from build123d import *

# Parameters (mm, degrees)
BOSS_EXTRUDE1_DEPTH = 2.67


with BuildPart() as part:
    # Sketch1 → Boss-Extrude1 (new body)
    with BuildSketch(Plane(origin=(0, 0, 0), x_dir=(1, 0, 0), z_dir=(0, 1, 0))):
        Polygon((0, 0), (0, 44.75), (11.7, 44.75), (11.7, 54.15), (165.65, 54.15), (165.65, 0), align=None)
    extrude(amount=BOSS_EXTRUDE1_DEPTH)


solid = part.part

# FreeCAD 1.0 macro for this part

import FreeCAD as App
import Part
import Sketcher

V = App.Vector
Q = App.Units.Quantity

doc = App.newDocument("Part")
body = doc.addObject("PartDesign::Body", "Body")

sketch1 = body.newObject("Sketcher::SketchObject", "Sketch")
sketch1.AttachmentSupport = (doc.getObject("XZ_Plane"), [""])
sketch1.MapMode = "FlatFace"
sketch1.addGeometry([
    Part.LineSegment(V(0, -45, 0), V(0, 0, 0)),
    Part.LineSegment(V(0, 0, 0), V(166, 0, 0)),
    Part.LineSegment(V(166, 0, 0), V(166, -54, 0)),
    Part.LineSegment(V(166, -54, 0), V(12, -54, 0)),
    Part.LineSegment(V(12, -54, 0), V(12, -45, 0)),
    Part.LineSegment(V(12, -45, 0), V(0, -45, 0)),
], False)
sketch1.addConstraint([
    Sketcher.Constraint("Coincident", 0, 2, 1, 1),
    Sketcher.Constraint("Coincident", 1, 2, 2, 1),
    Sketcher.Constraint("Coincident", 2, 2, 3, 1),
    Sketcher.Constraint("Coincident", 3, 2, 4, 1),
    Sketcher.Constraint("Coincident", 4, 2, 5, 1),
    Sketcher.Constraint("Coincident", 5, 2, 0, 1),
    Sketcher.Constraint("Vertical", 0),
    Sketcher.Constraint("Horizontal", 1),
    Sketcher.Constraint("Vertical", 2),
    Sketcher.Constraint("Horizontal", 3),
    Sketcher.Constraint("Vertical", 4),
    Sketcher.Constraint("Horizontal", 5),
    Sketcher.Constraint("Coincident", 0, 2, -1, 1),
    Sketcher.Constraint("DistanceX", 5, 2, 5, 1, Q("11.7 mm")),
    Sketcher.Constraint("DistanceY", 4, 1, 4, 2, Q("9.4 mm")),
    Sketcher.Constraint("DistanceX", 1, 1, 1, 2, Q("165.65 mm")),
    Sketcher.Constraint("DistanceY", 0, 1, 0, 2, Q("44.75 mm")),
])
pad1 = body.newObject("PartDesign::Pad", "Pad")
pad1.Profile = sketch1
pad1.Length = 2.67
pad1.Reversed = True

doc.recompute()
